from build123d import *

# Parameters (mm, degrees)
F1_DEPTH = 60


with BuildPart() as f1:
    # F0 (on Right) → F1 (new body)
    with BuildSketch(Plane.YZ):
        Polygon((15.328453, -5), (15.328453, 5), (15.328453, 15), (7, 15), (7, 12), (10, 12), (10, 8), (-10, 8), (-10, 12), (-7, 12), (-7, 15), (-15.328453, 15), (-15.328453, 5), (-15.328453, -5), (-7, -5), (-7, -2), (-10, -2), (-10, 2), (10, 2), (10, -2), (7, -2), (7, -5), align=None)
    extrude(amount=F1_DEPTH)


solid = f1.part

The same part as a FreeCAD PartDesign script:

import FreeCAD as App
import Part
import Sketcher

V = App.Vector


def add_polygon(sketch, points):
    """Adds a closed chain of lines whose ends are joined by coincident constraints."""
    first, n = sketch.GeometryCount, len(points)
    for a, b in zip(points, points[1:] + points[:1]):
        sketch.addGeometry(Part.LineSegment(App.Vector(*a, 0), App.Vector(*b, 0)), False)
    for i in range(n):
        sketch.addConstraint(Sketcher.Constraint("Coincident", first + i, 2, first + (i + 1) % n, 1))

doc = App.newDocument("Part")
params = doc.addObject("Spreadsheet::Sheet", "Params")
for row, (alias, value) in enumerate([
    ("sketch1_width", "3 mm"),
    ("sketch1_width2", "20 mm"),
    ("sketch1_height", "4 mm"),
    ("pad1_length", "60 mm"),
], start=1):
    params.set(f"A{row}", alias)
    params.set(f"B{row}", "=" + value)
    params.setAlias(f"B{row}", alias)

body = doc.addObject("PartDesign::Body", "Body")

# Sketch on YZ plane
sketch1 = doc.addObject("Sketcher::SketchObject", "Sketch")
body.addObject(sketch1)
sketch1.AttachmentSupport = (doc.YZ_Plane, [""])
sketch1.MapMode = "FlatFace"
add_polygon(sketch1, [(15.328453, -5), (15.328453, 15), (7, 15), (7, 12), (10, 12), (10, 8), (-10, 8), (-10, 12), (-7, 12), (-7, 15), (-15.328453, 15), (-15.328453, -5), (-7, -5), (-7, -2), (-10, -2), (-10, 2), (10, 2), (10, -2), (7, -2), (7, -5)])  # lines 0-19
sketch1.addConstraint([
    Sketcher.Constraint("Vertical", 0),
    Sketcher.Constraint("Horizontal", 1),
    Sketcher.Constraint("Vertical", 2),
    Sketcher.Constraint("Horizontal", 3),
    Sketcher.Constraint("Vertical", 4),
    Sketcher.Constraint("Horizontal", 5),
    Sketcher.Constraint("Vertical", 6),
    Sketcher.Constraint("Horizontal", 7),
    Sketcher.Constraint("Vertical", 8),
    Sketcher.Constraint("Horizontal", 9),
    Sketcher.Constraint("Vertical", 10),
    Sketcher.Constraint("Horizontal", 11),
    Sketcher.Constraint("Vertical", 12),
    Sketcher.Constraint("Horizontal", 13),
    Sketcher.Constraint("Vertical", 14),
    Sketcher.Constraint("Horizontal", 15),
    Sketcher.Constraint("Vertical", 16),
    Sketcher.Constraint("Horizontal", 17),
    Sketcher.Constraint("Vertical", 18),
    Sketcher.Constraint("Horizontal", 19),
    Sketcher.Constraint("Symmetric", 13, 2, 15, 2, -1, 1),
    Sketcher.Constraint("Symmetric", 3, 2, 6, 2, -2),
    Sketcher.Constraint("Symmetric", 1, 2, 8, 2, -2),
    Sketcher.Constraint("Symmetric", 12, 2, 17, 2, -2),
    Sketcher.Constraint("Symmetric", 10, 2, 19, 2, -2),
    Sketcher.Constraint("Vertical", 8, 2, 11, 2),
    Sketcher.Constraint("Vertical", 6, 2, 13, 2),
    Sketcher.Constraint("Equal", 15, 0),
    Sketcher.Constraint("Equal", 17, 2),
    Sketcher.Constraint("Equal", 8, 12),
    Sketcher.Constraint("Equal", 6, 14),
    Sketcher.Constraint("DistanceX", 3, 1, 3, 2, 3.0),
    Sketcher.Constraint("DistanceX", 5, 2, 5, 1, 20.0),
    Sketcher.Constraint("DistanceY", 4, 2, 4, 1, 4.0),
    Sketcher.Constraint("DistanceX", 1, 2, 1, 1, 8.328453),
])
sketch1.setExpression("Constraints[51]", "Params.sketch1_width")
sketch1.setExpression("Constraints[52]", "Params.sketch1_width2")
sketch1.setExpression("Constraints[53]", "Params.sketch1_height")
pad1 = doc.addObject("PartDesign::Pad", "Pad")
body.addObject(pad1)
pad1.Profile = sketch1
pad1.setExpression("Length", "Params.pad1_length")

doc.recompute()
